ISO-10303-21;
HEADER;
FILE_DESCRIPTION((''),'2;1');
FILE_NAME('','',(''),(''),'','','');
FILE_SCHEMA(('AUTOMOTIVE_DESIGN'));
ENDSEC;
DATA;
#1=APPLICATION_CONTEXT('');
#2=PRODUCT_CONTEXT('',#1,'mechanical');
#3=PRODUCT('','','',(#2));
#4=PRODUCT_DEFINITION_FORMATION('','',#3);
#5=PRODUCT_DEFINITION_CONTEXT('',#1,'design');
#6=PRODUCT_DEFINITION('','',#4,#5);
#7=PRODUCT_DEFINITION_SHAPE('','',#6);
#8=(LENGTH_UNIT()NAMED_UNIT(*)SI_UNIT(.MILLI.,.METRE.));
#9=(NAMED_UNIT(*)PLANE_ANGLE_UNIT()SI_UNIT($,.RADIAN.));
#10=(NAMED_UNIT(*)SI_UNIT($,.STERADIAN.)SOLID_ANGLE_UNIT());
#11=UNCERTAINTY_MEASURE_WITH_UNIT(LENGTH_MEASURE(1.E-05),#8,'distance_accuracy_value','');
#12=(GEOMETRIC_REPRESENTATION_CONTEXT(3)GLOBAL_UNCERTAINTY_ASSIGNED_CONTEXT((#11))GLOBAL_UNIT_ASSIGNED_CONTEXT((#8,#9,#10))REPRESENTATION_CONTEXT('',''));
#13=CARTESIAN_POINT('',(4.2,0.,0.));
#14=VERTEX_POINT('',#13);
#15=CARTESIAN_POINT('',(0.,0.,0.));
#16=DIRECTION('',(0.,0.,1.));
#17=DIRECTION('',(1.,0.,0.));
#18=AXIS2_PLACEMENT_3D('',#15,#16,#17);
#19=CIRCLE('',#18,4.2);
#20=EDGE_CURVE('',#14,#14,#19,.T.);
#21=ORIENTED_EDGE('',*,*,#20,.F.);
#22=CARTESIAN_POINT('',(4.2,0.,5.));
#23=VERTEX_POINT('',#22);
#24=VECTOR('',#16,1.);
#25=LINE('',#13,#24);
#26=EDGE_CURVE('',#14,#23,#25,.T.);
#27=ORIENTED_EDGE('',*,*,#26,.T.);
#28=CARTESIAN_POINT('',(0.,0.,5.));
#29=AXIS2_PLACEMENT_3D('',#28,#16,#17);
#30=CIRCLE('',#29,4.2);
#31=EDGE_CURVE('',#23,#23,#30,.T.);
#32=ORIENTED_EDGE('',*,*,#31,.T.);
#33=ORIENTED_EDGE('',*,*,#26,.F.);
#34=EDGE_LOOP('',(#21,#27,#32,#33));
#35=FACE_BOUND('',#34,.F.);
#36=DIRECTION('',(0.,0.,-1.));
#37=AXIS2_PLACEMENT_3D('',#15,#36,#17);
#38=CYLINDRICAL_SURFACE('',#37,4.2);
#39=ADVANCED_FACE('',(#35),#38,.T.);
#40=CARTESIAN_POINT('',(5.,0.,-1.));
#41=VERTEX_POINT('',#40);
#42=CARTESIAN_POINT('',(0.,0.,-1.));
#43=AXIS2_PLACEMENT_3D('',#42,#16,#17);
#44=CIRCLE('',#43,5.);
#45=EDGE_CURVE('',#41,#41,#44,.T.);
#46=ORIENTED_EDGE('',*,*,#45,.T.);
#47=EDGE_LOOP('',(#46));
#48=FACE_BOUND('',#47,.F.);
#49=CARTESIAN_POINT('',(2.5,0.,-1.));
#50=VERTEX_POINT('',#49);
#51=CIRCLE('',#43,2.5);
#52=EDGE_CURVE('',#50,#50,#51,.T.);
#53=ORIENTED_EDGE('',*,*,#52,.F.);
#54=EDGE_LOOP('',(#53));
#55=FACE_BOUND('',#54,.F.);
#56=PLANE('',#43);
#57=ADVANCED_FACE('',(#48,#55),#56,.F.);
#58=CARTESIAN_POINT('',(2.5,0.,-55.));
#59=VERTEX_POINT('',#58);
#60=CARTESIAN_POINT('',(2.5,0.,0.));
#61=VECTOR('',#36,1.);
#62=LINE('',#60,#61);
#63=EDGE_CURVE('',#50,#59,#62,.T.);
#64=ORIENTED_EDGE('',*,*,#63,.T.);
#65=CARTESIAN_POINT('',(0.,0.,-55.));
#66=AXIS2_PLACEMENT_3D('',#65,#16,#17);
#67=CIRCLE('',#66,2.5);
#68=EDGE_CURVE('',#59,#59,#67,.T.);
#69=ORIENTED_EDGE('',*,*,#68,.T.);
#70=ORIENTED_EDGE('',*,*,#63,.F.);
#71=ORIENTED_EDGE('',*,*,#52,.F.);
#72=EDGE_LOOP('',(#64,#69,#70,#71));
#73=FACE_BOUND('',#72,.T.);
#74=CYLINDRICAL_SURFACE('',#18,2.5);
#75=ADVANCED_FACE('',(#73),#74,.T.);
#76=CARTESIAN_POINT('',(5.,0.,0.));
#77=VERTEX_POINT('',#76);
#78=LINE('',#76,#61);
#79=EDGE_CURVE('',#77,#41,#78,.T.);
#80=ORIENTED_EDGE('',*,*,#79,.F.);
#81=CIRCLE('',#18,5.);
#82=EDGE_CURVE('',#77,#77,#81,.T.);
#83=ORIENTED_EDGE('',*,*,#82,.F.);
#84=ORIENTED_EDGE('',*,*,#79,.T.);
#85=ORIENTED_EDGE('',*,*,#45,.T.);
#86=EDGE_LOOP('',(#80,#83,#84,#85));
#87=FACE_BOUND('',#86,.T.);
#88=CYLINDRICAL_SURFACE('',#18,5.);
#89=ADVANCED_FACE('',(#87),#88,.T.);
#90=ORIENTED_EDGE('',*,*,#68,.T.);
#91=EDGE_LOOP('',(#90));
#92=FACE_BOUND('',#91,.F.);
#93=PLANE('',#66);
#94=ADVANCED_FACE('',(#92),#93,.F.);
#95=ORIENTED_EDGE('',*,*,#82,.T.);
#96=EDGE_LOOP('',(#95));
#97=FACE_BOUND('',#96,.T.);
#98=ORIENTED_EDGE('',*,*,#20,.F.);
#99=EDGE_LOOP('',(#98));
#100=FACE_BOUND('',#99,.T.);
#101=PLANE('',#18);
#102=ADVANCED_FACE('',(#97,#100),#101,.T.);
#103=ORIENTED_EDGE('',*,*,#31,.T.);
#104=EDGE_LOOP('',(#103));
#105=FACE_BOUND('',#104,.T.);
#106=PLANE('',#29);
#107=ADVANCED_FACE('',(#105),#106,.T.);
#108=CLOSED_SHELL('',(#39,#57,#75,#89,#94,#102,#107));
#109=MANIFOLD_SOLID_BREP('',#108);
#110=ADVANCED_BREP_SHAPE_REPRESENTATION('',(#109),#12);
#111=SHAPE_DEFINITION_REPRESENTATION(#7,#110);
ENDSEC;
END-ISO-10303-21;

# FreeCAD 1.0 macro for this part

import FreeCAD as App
import Part
import Sketcher
from FreeCAD import Vector

doc = App.newDocument("Part")
body = doc.addObject("PartDesign::Body", "Body")

sketch1 = body.newObject("Sketcher::SketchObject", "Sketch")
sketch1.AttachmentSupport = (doc.getObject("XY_Plane"), [""])
sketch1.MapMode = "FlatFace"
sketch1.addGeometry(Part.Circle(Vector(0, 0, 0), Vector(0, 0, 1), 2.5), False)
sketch1.addConstraint(Sketcher.Constraint("Coincident", 0, 3, -1, 1))
sketch1.addConstraint(Sketcher.Constraint("Diameter", 0, 5.0))
pad1 = body.newObject("PartDesign::Pad", "Pad")
pad1.Profile = sketch1
pad1.Length = 55
pad1.Reversed = True

sketch2 = body.newObject("Sketcher::SketchObject", "Sketch001")
sketch2.AttachmentSupport = (doc.getObject("XY_Plane"), [""])
sketch2.MapMode = "FlatFace"
sketch2.addGeometry(Part.Circle(Vector(0, 0, 0), Vector(0, 0, 1), 4.2), False)
sketch2.addConstraint(Sketcher.Constraint("Coincident", 0, 3, -1, 1))
sketch2.addConstraint(Sketcher.Constraint("Diameter", 0, 8.4))
pad2 = body.newObject("PartDesign::Pad", "Pad001")
pad2.Profile = sketch2
pad2.Length = 5

sketch3 = body.newObject("Sketcher::SketchObject", "Sketch002")
sketch3.AttachmentSupport = (doc.getObject("XY_Plane"), [""])
sketch3.MapMode = "FlatFace"
sketch3.addGeometry(Part.Circle(Vector(0, 0, 0), Vector(0, 0, 1), 5), False)
sketch3.addConstraint(Sketcher.Constraint("Coincident", 0, 3, -1, 1))
sketch3.addConstraint(Sketcher.Constraint("Diameter", 0, 10.0))
pad3 = body.newObject("PartDesign::Pad", "Pad002")
pad3.Profile = sketch3
pad3.Length = 1
pad3.Reversed = True

doc.recompute()
